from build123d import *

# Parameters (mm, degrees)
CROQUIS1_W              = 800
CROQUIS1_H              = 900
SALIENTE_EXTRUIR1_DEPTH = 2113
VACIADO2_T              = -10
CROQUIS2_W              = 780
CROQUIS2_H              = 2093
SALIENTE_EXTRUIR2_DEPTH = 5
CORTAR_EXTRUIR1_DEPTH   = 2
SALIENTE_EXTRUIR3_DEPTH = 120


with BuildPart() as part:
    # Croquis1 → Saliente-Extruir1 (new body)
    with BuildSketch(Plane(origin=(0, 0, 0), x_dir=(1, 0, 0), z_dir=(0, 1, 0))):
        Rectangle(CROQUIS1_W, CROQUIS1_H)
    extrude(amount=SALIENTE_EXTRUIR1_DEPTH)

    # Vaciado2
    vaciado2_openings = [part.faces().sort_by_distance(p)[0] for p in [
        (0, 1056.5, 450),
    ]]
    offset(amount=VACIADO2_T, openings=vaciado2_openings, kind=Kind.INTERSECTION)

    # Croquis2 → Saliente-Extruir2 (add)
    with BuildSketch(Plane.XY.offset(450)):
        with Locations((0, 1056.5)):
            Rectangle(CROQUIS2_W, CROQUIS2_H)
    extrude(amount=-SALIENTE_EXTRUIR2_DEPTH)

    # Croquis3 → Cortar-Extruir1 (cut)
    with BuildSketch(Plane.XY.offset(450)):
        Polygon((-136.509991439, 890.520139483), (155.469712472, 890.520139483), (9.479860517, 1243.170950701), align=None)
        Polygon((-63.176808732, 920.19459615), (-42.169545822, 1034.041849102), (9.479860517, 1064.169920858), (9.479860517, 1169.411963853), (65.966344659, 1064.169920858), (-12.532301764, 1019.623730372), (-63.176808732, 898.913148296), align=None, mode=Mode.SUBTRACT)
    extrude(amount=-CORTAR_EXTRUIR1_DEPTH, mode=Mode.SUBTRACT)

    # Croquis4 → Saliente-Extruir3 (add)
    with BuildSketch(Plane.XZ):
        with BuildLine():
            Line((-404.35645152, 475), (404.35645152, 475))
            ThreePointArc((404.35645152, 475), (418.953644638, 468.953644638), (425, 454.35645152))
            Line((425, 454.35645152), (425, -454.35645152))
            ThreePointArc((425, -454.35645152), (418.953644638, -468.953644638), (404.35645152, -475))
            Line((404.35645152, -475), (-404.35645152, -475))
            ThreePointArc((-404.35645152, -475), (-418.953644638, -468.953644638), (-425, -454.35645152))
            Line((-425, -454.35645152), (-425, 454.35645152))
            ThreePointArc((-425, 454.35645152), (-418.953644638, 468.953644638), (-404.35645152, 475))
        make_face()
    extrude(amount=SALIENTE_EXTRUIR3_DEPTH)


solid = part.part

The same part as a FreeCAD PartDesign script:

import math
import FreeCAD as App
import Part
import Sketcher
Q = App.Units.Quantity


def faces_at(feature, points):
    """Names of the faces that lie closest to the given points."""
    faces = feature.Shape.Faces
    near = lambda p: min(range(len(faces)), key=lambda i: faces[i].distToShape(Part.Vertex(*p))[0])
    return sorted({f"Face{near(p) + 1}" for p in points})

doc = App.newDocument("Part")
body = doc.addObject("PartDesign::Body", "Body")

# Sketch on XZ plane
sketch1 = doc.addObject("Sketcher::SketchObject", "Sketch")
body.addObject(sketch1)
sketch1.AttachmentSupport = (doc.XZ_Plane, [""])
sketch1.MapMode = "FlatFace"
sketch1.addGeometry([
    Part.LineSegment(App.Vector(-400, -450, 0), App.Vector(-400, 450, 0)),
    Part.LineSegment(App.Vector(-400, 450, 0), App.Vector(400, 450, 0)),
    Part.LineSegment(App.Vector(400, 450, 0), App.Vector(400, -450, 0)),
    Part.LineSegment(App.Vector(400, -450, 0), App.Vector(-400, -450, 0)),
], False)
sketch1.addConstraint([
    Sketcher.Constraint("Coincident", 0, 2, 1, 1),
    Sketcher.Constraint("Coincident", 1, 2, 2, 1),
    Sketcher.Constraint("Coincident", 2, 2, 3, 1),
    Sketcher.Constraint("Coincident", 3, 2, 0, 1),
    Sketcher.Constraint("Vertical", 0),
    Sketcher.Constraint("Horizontal", 1),
    Sketcher.Constraint("Vertical", 2),
    Sketcher.Constraint("Horizontal", 3),
    Sketcher.Constraint("Symmetric", 0, 2, 2, 2, -1, 1),
    Sketcher.Constraint("DistanceX", 1, 1, 1, 2, Q("800 mm")),
    Sketcher.Constraint("DistanceY", 0, 1, 0, 2, Q("900 mm")),
])
pad1 = doc.addObject("PartDesign::Pad", "Pad")
body.addObject(pad1)
pad1.Profile = sketch1
pad1.Length = 2113
pad1.Reversed = True
doc.recompute()

thickness = doc.addObject("PartDesign::Thickness", "Thickness")
body.addObject(thickness)
thickness.Base = (pad1, faces_at(pad1, [(0, 1056.5, 450)]))
thickness.Value = 10
thickness.Reversed = True
thickness.Join = "Intersection"

# Sketch on XY plane
sketch2 = doc.addObject("Sketcher::SketchObject", "Sketch001")
body.addObject(sketch2)
sketch2.AttachmentSupport = (doc.XY_Plane, [""])
sketch2.MapMode = "FlatFace"
sketch2.AttachmentOffset = App.Placement(App.Vector(0, 0, 450), App.Rotation())
sketch2.addGeometry([
    Part.LineSegment(App.Vector(-390, 2103, 0), App.Vector(-390, 10, 0)),
    Part.LineSegment(App.Vector(-390, 10, 0), App.Vector(390, 10, 0)),
    Part.LineSegment(App.Vector(390, 10, 0), App.Vector(390, 2103, 0)),
    Part.LineSegment(App.Vector(390, 2103, 0), App.Vector(-390, 2103, 0)),
], False)
sketch2.addConstraint([
    Sketcher.Constraint("Coincident", 0, 2, 1, 1),
    Sketcher.Constraint("Coincident", 1, 2, 2, 1),
    Sketcher.Constraint("Coincident", 2, 2, 3, 1),
    Sketcher.Constraint("Coincident", 3, 2, 0, 1),
    Sketcher.Constraint("Vertical", 0),
    Sketcher.Constraint("Horizontal", 1),
    Sketcher.Constraint("Vertical", 2),
    Sketcher.Constraint("Horizontal", 3),
    Sketcher.Constraint("DistanceX", 1, 1, 1, 2, Q("780 mm")),
    Sketcher.Constraint("DistanceY", 0, 2, 0, 1, Q("2093 mm")),
    Sketcher.Constraint("DistanceX", 0, 2, -1, 1, Q("390 mm")),
    Sketcher.Constraint("DistanceY", -1, 1, 0, 2, Q("10 mm")),
])
pad2 = doc.addObject("PartDesign::Pad", "Pad001")
body.addObject(pad2)
pad2.Profile = sketch2
pad2.Length = 5
pad2.Reversed = True

# Sketch on XY plane
sketch3 = doc.addObject("Sketcher::SketchObject", "Sketch002")
body.addObject(sketch3)
sketch3.AttachmentSupport = (doc.XY_Plane, [""])
sketch3.MapMode = "FlatFace"
sketch3.AttachmentOffset = App.Placement(App.Vector(0, 0, 450), App.Rotation())
sketch3.addGeometry([
    Part.LineSegment(App.Vector(-137, 891, 0), App.Vector(155, 891, 0)),  # 0
    Part.LineSegment(App.Vector(155, 891, 0), App.Vector(9, 1243, 0)),  # 1
    Part.LineSegment(App.Vector(9, 1243, 0), App.Vector(-137, 891, 0)),  # 2
    Part.LineSegment(App.Vector(-63, 899, 0), App.Vector(-63, 920, 0)),  # 3
    Part.LineSegment(App.Vector(-63, 920, 0), App.Vector(-42, 1034, 0)),  # 4
    Part.LineSegment(App.Vector(-42, 1034, 0), App.Vector(9, 1064, 0)),  # 5
    Part.LineSegment(App.Vector(9, 1064, 0), App.Vector(9, 1169, 0)),  # 6
    Part.LineSegment(App.Vector(9, 1169, 0), App.Vector(66, 1064, 0)),  # 7
    Part.LineSegment(App.Vector(66, 1064, 0), App.Vector(-13, 1020, 0)),  # 8
    Part.LineSegment(App.Vector(-13, 1020, 0), App.Vector(-63, 899, 0)),  # 9
], False)
sketch3.addConstraint([
    Sketcher.Constraint("Coincident", 0, 2, 1, 1),
    Sketcher.Constraint("Coincident", 1, 2, 2, 1),
    Sketcher.Constraint("Coincident", 2, 2, 0, 1),
    Sketcher.Constraint("Coincident", 3, 2, 4, 1),
    Sketcher.Constraint("Coincident", 4, 2, 5, 1),
    Sketcher.Constraint("Coincident", 5, 2, 6, 1),
    Sketcher.Constraint("Coincident", 6, 2, 7, 1),
    Sketcher.Constraint("Coincident", 7, 2, 8, 1),
    Sketcher.Constraint("Coincident", 8, 2, 9, 1),
    Sketcher.Constraint("Coincident", 9, 2, 3, 1),
    Sketcher.Constraint("Horizontal", 0),
    Sketcher.Constraint("Vertical", 3),
    Sketcher.Constraint("Vertical", 6),
    Sketcher.Constraint("Horizontal", 5, 2, 7, 2),
    Sketcher.Constraint("Vertical", 1, 2, 5, 2),
    Sketcher.Constraint("Equal", 1, 2),
    Sketcher.Constraint("DistanceX", 8, 2, -1, 1, Q("12.532302 mm")),
    Sketcher.Constraint("DistanceY", 4, 2, 1, 2, Q("209.129102 mm")),
    Sketcher.Constraint("DistanceY", 9, 2, 4, 2, Q("135.128701 mm")),
    Sketcher.Constraint("Distance", 1, Q("381.674772 mm")),
    Sketcher.Constraint("Distance", 5, Q("59.79433 mm")),
    Sketcher.Constraint("DistanceX", 0, 1, 0, 2, Q("291.979704 mm")),
    Sketcher.Constraint("DistanceY", 3, 1, 3, 2, Q("21.281448 mm")),
    Sketcher.Constraint("DistanceY", 6, 1, 6, 2, Q("105.242043 mm")),
    Sketcher.Constraint("DistanceY", -1, 1, 0, 2, Q("890.520139 mm")),
    Sketcher.Constraint("DistanceX", -1, 1, 1, 2, Q("9.479861 mm")),
    Sketcher.Constraint("DistanceX", 3, 2, -1, 1, Q("63.176809 mm")),
    Sketcher.Constraint("DistanceY", -1, 1, 5, 2, Q("1064.169921 mm")),
    Sketcher.Constraint("DistanceY", -1, 1, 8, 2, Q("1019.62373 mm")),
    Sketcher.Constraint("DistanceX", 4, 2, 7, 2, Q("108.13589 mm")),
])
pocket1 = doc.addObject("PartDesign::Pocket", "Pocket")
body.addObject(pocket1)
pocket1.Profile = sketch3
pocket1.Length = 2

# Sketch on XZ plane
sketch4 = doc.addObject("Sketcher::SketchObject", "Sketch003")
body.addObject(sketch4)
sketch4.AttachmentSupport = (doc.XZ_Plane, [""])
sketch4.MapMode = "FlatFace"
sketch4.addGeometry([
    Part.LineSegment(App.Vector(404, 475, 0), App.Vector(-404, 475, 0)),  # 0
    Part.ArcOfCircle(Part.Circle(App.Vector(-404, 454, 0), App.Vector(0, 0, 1), 21), math.radians(90), math.radians(180)),  # 1
    Part.LineSegment(App.Vector(-425, 454, 0), App.Vector(-425, -454, 0)),  # 2
    Part.ArcOfCircle(Part.Circle(App.Vector(-404, -454, 0), App.Vector(0, 0, 1), 21), math.radians(180), math.radians(270)),  # 3
    Part.LineSegment(App.Vector(-404, -475, 0), App.Vector(404, -475, 0)),  # 4
    Part.ArcOfCircle(Part.Circle(App.Vector(404, -454, 0), App.Vector(0, 0, 1), 21), math.radians(-90), math.radians(0)),  # 5
    Part.LineSegment(App.Vector(425, -454, 0), App.Vector(425, 454, 0)),  # 6
    Part.ArcOfCircle(Part.Circle(App.Vector(404, 454, 0), App.Vector(0, 0, 1), 21), math.radians(0), math.radians(90)),  # 7
], False)
sketch4.addConstraint([
    Sketcher.Constraint("Tangent", 0, 2, 1, 1),
    Sketcher.Constraint("Tangent", 1, 2, 2, 1),
    Sketcher.Constraint("Tangent", 2, 2, 3, 1),
    Sketcher.Constraint("Tangent", 3, 2, 4, 1),
    Sketcher.Constraint("Tangent", 4, 2, 5, 1),
    Sketcher.Constraint("Tangent", 5, 2, 6, 1),
    Sketcher.Constraint("Tangent", 6, 2, 7, 1),
    Sketcher.Constraint("Tangent", 7, 2, 0, 1),
    Sketcher.Constraint("Horizontal", 0),
    Sketcher.Constraint("Vertical", 2),
    Sketcher.Constraint("Horizontal", 4),
    Sketcher.Constraint("Vertical", 6),
    Sketcher.Constraint("Equal", 1, 3),
    Sketcher.Constraint("Equal", 3, 5),
    Sketcher.Constraint("Equal", 5, 7),
    Sketcher.Constraint("Symmetric", 1, 3, 5, 3, -1, 1),
    Sketcher.Constraint("DistanceY", -1, 1, 0, 2, Q("475 mm")),
    Sketcher.Constraint("DistanceX", 1, 2, -1, 1, Q("425 mm")),
    Sketcher.Constraint("Radius", 1, Q("20.643548 mm")),
])
pad3 = doc.addObject("PartDesign::Pad", "Pad002")
body.addObject(pad3)
pad3.Profile = sketch4
pad3.Length = 120

doc.recompute()
